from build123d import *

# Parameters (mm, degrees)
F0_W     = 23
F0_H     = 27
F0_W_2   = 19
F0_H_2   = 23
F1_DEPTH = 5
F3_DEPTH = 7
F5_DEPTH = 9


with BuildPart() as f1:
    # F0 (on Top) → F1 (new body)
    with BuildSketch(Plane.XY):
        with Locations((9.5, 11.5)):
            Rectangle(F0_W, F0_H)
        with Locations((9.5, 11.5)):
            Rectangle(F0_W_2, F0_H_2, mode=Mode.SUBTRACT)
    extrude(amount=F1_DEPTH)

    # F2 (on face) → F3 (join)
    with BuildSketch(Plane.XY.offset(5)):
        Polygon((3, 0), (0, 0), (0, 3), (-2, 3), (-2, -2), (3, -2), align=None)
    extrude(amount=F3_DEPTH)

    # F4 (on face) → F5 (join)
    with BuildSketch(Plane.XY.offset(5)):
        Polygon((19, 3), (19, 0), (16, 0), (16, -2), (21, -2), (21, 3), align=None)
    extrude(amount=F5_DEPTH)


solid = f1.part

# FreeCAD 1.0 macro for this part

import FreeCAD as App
import Part
import Sketcher
from FreeCAD import Vector


def add_polygon(sketch, points):
    """Adds a closed chain of lines whose ends are joined by coincident constraints."""
    first, n = sketch.GeometryCount, len(points)
    for a, b in zip(points, points[1:] + points[:1]):
        sketch.addGeometry(Part.LineSegment(App.Vector(*a, 0), App.Vector(*b, 0)), False)
    for i in range(n):
        sketch.addConstraint(Sketcher.Constraint("Coincident", first + i, 2, first + (i + 1) % n, 1))

doc = App.newDocument("Part")
params = doc.addObject("Spreadsheet::Sheet", "Params")
for row, (alias, value) in enumerate([
    ("sketch1_width", "23 mm"),
    ("sketch1_width2", "19 mm"),
    ("sketch1_height", "27 mm"),
    ("pad1_length", "5 mm"),
    ("sketch2_width", "3 mm"),
    ("sketch2_width2", "2 mm"),
    ("pad2_length", "7 mm"),
    ("sketch3_width", "3 mm"),
    ("sketch3_width2", "5 mm"),
    ("pad3_length", "9 mm"),
], start=1):
    params.set(f"A{row}", alias)
    params.set(f"B{row}", "=" + value)
    params.setAlias(f"B{row}", alias)

body = doc.addObject("PartDesign::Body", "Body")

sketch1 = body.newObject("Sketcher::SketchObject", "Sketch")
sketch1.AttachmentSupport = (doc.getObject("XY_Plane"), [""])
sketch1.MapMode = "FlatFace"
add_polygon(sketch1, [(-2, 25), (-2, -2), (21, -2), (21, 25)])
add_polygon(sketch1, [(19, 0), (0, 0), (0, 23), (19, 23)])
sketch1.addConstraint([
    Sketcher.Constraint("Vertical", 0),
    Sketcher.Constraint("Horizontal", 1),
    Sketcher.Constraint("Vertical", 2),
    Sketcher.Constraint("Horizontal", 3),
    Sketcher.Constraint("Horizontal", 4),
    Sketcher.Constraint("Vertical", 5),
    Sketcher.Constraint("Horizontal", 6),
    Sketcher.Constraint("Vertical", 7),
    Sketcher.Constraint("Coincident", 4, 2, -1, 1),
    Sketcher.Constraint("Equal", 3, 5),
    Sketcher.Constraint("DistanceX", 1, 1, 1, 2, 23.0),
    Sketcher.Constraint("DistanceX", 4, 2, 4, 1, 19.0),
    Sketcher.Constraint("DistanceY", 0, 2, 0, 1, 27.0),
    Sketcher.Constraint("DistanceX", 0, 2, -1, 1, 2.0),
    Sketcher.Constraint("DistanceY", 0, 2, -1, 1, 2.0),
])
sketch1.setExpression("Constraints[18]", "Params.sketch1_width")
sketch1.setExpression("Constraints[19]", "Params.sketch1_width2")
sketch1.setExpression("Constraints[20]", "Params.sketch1_height")
pad1 = body.newObject("PartDesign::Pad", "Pad")
pad1.Profile = sketch1
pad1.setExpression("Length", "Params.pad1_length")

sketch2 = body.newObject("Sketcher::SketchObject", "Sketch001")
sketch2.AttachmentSupport = (doc.getObject("XY_Plane"), [""])
sketch2.MapMode = "FlatFace"
sketch2.AttachmentOffset = App.Placement(Vector(0, 0, 5), App.Rotation())
add_polygon(sketch2, [(3, 0), (0, 0), (0, 3), (-2, 3), (-2, -2), (3, -2)])
sketch2.addConstraint([
    Sketcher.Constraint("Horizontal", 0),
    Sketcher.Constraint("Vertical", 1),
    Sketcher.Constraint("Horizontal", 2),
    Sketcher.Constraint("Vertical", 3),
    Sketcher.Constraint("Horizontal", 4),
    Sketcher.Constraint("Vertical", 5),
    Sketcher.Constraint("Coincident", 0, 2, -1, 1),
    Sketcher.Constraint("Equal", 0, 1),
    Sketcher.Constraint("Equal", 4, 3),
    Sketcher.Constraint("DistanceX", 0, 2, 0, 1, 3.0),
    Sketcher.Constraint("DistanceX", 2, 2, 2, 1, 2.0),
])
sketch2.setExpression("Constraints[15]", "Params.sketch2_width")
sketch2.setExpression("Constraints[16]", "Params.sketch2_width2")
pad2 = body.newObject("PartDesign::Pad", "Pad001")
pad2.Profile = sketch2
pad2.setExpression("Length", "Params.pad2_length")

sketch3 = body.newObject("Sketcher::SketchObject", "Sketch002")
sketch3.AttachmentSupport = (doc.getObject("XY_Plane"), [""])
sketch3.MapMode = "FlatFace"
sketch3.AttachmentOffset = App.Placement(Vector(0, 0, 5), App.Rotation())
add_polygon(sketch3, [(19, 3), (19, 0), (16, 0), (16, -2), (21, -2), (21, 3)])
sketch3.addConstraint([
    Sketcher.Constraint("Vertical", 0),
    Sketcher.Constraint("Horizontal", 1),
    Sketcher.Constraint("Vertical", 2),
    Sketcher.Constraint("Horizontal", 3),
    Sketcher.Constraint("Vertical", 4),
    Sketcher.Constraint("Horizontal", 5),
    Sketcher.Constraint("PointOnObject", 0, 2, -1),
    Sketcher.Constraint("Equal", 1, 0),
    Sketcher.Constraint("Equal", 5, 2),
    Sketcher.Constraint("DistanceX", 1, 2, 1, 1, 3.0),
    Sketcher.Constraint("DistanceX", 3, 1, 3, 2, 5.0),
    Sketcher.Constraint("DistanceX", -1, 1, 0, 2, 19.0),
])
sketch3.setExpression("Constraints[15]", "Params.sketch3_width")
sketch3.setExpression("Constraints[16]", "Params.sketch3_width2")
pad3 = body.newObject("PartDesign::Pad", "Pad002")
pad3.Profile = sketch3
pad3.setExpression("Length", "Params.pad3_length")

doc.recompute()
